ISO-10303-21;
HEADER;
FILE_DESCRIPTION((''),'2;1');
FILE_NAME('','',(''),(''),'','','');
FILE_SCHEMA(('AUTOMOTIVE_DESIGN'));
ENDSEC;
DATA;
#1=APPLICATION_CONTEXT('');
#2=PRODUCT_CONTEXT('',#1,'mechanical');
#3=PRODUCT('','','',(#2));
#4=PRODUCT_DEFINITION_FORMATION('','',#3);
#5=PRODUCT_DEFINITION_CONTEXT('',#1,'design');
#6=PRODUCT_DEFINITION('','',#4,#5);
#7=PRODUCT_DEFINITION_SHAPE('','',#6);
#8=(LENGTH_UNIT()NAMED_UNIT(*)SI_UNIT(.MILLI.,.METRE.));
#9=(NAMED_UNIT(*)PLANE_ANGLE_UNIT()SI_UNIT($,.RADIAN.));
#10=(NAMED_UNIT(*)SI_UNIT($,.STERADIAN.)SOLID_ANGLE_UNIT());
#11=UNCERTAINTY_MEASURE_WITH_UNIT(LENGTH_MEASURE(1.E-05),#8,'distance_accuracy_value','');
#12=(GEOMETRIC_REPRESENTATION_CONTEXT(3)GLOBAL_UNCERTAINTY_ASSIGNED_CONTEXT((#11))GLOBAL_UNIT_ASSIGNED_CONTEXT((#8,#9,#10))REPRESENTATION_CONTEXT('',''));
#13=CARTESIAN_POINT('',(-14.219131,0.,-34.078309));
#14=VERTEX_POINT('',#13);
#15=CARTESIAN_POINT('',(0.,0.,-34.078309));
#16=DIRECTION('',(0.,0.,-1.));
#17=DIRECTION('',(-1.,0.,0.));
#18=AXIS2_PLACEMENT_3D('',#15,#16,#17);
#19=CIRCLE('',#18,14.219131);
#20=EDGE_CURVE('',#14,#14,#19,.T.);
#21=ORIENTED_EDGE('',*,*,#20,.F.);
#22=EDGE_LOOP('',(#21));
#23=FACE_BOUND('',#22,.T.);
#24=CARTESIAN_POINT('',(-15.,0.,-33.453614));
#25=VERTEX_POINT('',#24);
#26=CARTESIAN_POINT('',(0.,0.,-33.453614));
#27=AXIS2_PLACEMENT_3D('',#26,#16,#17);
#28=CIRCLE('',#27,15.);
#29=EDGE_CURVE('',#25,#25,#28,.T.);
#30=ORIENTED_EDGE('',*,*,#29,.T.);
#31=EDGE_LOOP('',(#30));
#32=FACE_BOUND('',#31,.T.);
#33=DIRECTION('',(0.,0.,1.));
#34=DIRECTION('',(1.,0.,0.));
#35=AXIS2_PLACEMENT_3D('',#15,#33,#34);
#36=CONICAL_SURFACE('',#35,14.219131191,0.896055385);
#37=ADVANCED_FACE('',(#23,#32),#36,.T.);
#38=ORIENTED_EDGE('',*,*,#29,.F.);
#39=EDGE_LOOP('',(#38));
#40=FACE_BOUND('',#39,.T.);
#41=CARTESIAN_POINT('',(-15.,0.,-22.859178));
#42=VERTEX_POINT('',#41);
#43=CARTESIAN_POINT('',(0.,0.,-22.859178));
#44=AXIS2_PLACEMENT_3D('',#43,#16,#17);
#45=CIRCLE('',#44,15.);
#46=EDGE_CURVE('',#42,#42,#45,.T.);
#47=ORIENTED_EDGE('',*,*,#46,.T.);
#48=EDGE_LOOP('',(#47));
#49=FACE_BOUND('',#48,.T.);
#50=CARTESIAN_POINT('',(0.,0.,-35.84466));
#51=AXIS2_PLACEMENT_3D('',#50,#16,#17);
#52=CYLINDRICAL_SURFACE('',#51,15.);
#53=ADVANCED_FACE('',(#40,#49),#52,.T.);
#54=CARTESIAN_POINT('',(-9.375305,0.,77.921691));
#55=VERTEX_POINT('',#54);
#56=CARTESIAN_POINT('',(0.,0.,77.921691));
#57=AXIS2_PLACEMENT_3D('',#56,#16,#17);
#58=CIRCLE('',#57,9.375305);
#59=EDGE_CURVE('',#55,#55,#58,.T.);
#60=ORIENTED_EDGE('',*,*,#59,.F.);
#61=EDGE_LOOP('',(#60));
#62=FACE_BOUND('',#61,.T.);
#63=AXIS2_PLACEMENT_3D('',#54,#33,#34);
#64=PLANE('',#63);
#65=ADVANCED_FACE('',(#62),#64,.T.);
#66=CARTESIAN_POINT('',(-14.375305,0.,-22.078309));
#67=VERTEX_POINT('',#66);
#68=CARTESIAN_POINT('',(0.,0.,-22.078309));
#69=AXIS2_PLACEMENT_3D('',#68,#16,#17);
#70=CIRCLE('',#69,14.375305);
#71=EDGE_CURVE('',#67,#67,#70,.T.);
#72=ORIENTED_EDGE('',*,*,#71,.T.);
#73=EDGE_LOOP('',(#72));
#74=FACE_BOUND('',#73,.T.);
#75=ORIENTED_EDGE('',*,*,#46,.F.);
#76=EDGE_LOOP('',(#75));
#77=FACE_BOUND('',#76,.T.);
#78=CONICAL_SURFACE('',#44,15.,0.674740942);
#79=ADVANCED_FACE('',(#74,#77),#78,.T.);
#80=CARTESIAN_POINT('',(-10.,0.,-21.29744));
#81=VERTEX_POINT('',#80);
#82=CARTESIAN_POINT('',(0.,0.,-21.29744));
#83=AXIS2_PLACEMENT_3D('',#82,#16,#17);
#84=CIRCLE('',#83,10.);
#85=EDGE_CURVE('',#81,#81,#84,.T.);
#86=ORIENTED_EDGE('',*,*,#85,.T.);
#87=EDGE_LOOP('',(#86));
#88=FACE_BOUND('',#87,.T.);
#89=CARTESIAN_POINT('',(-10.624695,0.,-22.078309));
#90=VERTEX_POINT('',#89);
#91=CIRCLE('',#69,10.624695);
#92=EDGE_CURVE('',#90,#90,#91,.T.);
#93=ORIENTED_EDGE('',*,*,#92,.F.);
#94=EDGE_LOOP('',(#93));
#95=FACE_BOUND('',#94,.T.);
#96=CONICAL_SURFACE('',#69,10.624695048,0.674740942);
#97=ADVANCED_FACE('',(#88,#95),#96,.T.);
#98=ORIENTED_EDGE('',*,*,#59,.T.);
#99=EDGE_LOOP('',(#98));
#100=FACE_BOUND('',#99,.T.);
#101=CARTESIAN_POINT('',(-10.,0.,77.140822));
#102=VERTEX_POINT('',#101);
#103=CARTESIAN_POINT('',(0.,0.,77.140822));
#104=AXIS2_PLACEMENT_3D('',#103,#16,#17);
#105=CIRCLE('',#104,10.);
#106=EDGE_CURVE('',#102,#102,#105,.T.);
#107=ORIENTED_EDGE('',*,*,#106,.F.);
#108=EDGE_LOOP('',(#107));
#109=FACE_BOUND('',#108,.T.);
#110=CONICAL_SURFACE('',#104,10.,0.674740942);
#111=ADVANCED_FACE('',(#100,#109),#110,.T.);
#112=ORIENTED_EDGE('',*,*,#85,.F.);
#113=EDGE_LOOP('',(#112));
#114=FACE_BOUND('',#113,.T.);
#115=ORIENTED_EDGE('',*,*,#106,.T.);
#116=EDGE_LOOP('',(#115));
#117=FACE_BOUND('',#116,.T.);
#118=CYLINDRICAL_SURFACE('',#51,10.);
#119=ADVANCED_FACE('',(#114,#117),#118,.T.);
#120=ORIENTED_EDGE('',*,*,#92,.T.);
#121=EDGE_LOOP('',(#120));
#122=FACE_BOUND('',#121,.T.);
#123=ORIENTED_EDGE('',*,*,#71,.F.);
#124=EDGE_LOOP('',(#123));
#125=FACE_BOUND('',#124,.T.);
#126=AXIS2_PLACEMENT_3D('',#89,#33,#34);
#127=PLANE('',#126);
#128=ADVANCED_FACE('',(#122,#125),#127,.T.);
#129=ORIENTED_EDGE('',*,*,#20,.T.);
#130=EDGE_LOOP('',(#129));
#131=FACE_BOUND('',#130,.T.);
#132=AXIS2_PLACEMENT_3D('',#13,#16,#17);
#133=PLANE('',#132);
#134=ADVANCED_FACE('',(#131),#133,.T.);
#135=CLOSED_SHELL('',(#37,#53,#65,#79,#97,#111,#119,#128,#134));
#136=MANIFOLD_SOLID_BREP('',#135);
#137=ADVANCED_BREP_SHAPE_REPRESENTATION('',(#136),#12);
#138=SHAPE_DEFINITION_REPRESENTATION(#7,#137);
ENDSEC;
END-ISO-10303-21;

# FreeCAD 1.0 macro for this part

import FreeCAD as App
import Part
import Sketcher
from FreeCAD import Vector


def add_polygon(sketch, points):
    """Adds a closed chain of lines whose ends are joined by coincident constraints."""
    first, n = sketch.GeometryCount, len(points)
    for a, b in zip(points, points[1:] + points[:1]):
        sketch.addGeometry(Part.LineSegment(App.Vector(*a, 0), App.Vector(*b, 0)), False)
    for i in range(n):
        sketch.addConstraint(Sketcher.Constraint("Coincident", first + i, 2, first + (i + 1) % n, 1))

doc = App.newDocument("Part")
body = doc.addObject("PartDesign::Body", "Body")

# Sketch on XZ plane
sketch1 = doc.addObject("Sketcher::SketchObject", "Sketch")
body.addObject(sketch1)
sketch1.AttachmentSupport = (doc.XZ_Plane, [""])
sketch1.MapMode = "FlatFace"
add_polygon(sketch1, [(-10, -21.3), (-10, 77.1), (-9.4, 77.9), (0, 77.9), (0, -34.1), (-14.2, -34.1), (-15, -33.5), (-15, -22.9), (-14.4, -22.1), (-10.6, -22.1)])  # lines 0-9
sketch1.addConstraint([
    Sketcher.Constraint("Vertical", 0),
    Sketcher.Constraint("Horizontal", 2),
    Sketcher.Constraint("Vertical", 3),
    Sketcher.Constraint("Horizontal", 4),
    Sketcher.Constraint("Vertical", 6),
    Sketcher.Constraint("Horizontal", 8),
    Sketcher.Constraint("PointOnObject", 2, 2, -2),
    Sketcher.Constraint("Perpendicular", 1, 5),
    Sketcher.Constraint("Perpendicular", 5, 7),
    Sketcher.Constraint("Parallel", 7, 9),
    Sketcher.Constraint("Equal", 1, 5),
    Sketcher.Constraint("Equal", 5, 7),
    Sketcher.Constraint("Equal", 7, 9),
    Sketcher.Constraint("DistanceY", 3, 2, 3, 1, 112.0),
    Sketcher.Constraint("Distance", 1, 1.0),
    Sketcher.Constraint("DistanceX", 0, 2, -1, 1, 10.0),
    Sketcher.Constraint("DistanceX", 5, 2, -1, 1, 15.0),
    Sketcher.Constraint("DistanceY", 6, 2, 0, 2, 100.0),
    Sketcher.Constraint("DistanceX", 4, 2, 4, 1, 14.219131),
    Sketcher.Constraint("DistanceY", -1, 1, 0, 2, 77.140822),
])
revolution = doc.addObject("PartDesign::Revolution", "Revolution")
body.addObject(revolution)
revolution.Profile = sketch1
revolution.ReferenceAxis = (sketch1, ["V_Axis"])
revolution.Angle = 360

doc.recompute()
